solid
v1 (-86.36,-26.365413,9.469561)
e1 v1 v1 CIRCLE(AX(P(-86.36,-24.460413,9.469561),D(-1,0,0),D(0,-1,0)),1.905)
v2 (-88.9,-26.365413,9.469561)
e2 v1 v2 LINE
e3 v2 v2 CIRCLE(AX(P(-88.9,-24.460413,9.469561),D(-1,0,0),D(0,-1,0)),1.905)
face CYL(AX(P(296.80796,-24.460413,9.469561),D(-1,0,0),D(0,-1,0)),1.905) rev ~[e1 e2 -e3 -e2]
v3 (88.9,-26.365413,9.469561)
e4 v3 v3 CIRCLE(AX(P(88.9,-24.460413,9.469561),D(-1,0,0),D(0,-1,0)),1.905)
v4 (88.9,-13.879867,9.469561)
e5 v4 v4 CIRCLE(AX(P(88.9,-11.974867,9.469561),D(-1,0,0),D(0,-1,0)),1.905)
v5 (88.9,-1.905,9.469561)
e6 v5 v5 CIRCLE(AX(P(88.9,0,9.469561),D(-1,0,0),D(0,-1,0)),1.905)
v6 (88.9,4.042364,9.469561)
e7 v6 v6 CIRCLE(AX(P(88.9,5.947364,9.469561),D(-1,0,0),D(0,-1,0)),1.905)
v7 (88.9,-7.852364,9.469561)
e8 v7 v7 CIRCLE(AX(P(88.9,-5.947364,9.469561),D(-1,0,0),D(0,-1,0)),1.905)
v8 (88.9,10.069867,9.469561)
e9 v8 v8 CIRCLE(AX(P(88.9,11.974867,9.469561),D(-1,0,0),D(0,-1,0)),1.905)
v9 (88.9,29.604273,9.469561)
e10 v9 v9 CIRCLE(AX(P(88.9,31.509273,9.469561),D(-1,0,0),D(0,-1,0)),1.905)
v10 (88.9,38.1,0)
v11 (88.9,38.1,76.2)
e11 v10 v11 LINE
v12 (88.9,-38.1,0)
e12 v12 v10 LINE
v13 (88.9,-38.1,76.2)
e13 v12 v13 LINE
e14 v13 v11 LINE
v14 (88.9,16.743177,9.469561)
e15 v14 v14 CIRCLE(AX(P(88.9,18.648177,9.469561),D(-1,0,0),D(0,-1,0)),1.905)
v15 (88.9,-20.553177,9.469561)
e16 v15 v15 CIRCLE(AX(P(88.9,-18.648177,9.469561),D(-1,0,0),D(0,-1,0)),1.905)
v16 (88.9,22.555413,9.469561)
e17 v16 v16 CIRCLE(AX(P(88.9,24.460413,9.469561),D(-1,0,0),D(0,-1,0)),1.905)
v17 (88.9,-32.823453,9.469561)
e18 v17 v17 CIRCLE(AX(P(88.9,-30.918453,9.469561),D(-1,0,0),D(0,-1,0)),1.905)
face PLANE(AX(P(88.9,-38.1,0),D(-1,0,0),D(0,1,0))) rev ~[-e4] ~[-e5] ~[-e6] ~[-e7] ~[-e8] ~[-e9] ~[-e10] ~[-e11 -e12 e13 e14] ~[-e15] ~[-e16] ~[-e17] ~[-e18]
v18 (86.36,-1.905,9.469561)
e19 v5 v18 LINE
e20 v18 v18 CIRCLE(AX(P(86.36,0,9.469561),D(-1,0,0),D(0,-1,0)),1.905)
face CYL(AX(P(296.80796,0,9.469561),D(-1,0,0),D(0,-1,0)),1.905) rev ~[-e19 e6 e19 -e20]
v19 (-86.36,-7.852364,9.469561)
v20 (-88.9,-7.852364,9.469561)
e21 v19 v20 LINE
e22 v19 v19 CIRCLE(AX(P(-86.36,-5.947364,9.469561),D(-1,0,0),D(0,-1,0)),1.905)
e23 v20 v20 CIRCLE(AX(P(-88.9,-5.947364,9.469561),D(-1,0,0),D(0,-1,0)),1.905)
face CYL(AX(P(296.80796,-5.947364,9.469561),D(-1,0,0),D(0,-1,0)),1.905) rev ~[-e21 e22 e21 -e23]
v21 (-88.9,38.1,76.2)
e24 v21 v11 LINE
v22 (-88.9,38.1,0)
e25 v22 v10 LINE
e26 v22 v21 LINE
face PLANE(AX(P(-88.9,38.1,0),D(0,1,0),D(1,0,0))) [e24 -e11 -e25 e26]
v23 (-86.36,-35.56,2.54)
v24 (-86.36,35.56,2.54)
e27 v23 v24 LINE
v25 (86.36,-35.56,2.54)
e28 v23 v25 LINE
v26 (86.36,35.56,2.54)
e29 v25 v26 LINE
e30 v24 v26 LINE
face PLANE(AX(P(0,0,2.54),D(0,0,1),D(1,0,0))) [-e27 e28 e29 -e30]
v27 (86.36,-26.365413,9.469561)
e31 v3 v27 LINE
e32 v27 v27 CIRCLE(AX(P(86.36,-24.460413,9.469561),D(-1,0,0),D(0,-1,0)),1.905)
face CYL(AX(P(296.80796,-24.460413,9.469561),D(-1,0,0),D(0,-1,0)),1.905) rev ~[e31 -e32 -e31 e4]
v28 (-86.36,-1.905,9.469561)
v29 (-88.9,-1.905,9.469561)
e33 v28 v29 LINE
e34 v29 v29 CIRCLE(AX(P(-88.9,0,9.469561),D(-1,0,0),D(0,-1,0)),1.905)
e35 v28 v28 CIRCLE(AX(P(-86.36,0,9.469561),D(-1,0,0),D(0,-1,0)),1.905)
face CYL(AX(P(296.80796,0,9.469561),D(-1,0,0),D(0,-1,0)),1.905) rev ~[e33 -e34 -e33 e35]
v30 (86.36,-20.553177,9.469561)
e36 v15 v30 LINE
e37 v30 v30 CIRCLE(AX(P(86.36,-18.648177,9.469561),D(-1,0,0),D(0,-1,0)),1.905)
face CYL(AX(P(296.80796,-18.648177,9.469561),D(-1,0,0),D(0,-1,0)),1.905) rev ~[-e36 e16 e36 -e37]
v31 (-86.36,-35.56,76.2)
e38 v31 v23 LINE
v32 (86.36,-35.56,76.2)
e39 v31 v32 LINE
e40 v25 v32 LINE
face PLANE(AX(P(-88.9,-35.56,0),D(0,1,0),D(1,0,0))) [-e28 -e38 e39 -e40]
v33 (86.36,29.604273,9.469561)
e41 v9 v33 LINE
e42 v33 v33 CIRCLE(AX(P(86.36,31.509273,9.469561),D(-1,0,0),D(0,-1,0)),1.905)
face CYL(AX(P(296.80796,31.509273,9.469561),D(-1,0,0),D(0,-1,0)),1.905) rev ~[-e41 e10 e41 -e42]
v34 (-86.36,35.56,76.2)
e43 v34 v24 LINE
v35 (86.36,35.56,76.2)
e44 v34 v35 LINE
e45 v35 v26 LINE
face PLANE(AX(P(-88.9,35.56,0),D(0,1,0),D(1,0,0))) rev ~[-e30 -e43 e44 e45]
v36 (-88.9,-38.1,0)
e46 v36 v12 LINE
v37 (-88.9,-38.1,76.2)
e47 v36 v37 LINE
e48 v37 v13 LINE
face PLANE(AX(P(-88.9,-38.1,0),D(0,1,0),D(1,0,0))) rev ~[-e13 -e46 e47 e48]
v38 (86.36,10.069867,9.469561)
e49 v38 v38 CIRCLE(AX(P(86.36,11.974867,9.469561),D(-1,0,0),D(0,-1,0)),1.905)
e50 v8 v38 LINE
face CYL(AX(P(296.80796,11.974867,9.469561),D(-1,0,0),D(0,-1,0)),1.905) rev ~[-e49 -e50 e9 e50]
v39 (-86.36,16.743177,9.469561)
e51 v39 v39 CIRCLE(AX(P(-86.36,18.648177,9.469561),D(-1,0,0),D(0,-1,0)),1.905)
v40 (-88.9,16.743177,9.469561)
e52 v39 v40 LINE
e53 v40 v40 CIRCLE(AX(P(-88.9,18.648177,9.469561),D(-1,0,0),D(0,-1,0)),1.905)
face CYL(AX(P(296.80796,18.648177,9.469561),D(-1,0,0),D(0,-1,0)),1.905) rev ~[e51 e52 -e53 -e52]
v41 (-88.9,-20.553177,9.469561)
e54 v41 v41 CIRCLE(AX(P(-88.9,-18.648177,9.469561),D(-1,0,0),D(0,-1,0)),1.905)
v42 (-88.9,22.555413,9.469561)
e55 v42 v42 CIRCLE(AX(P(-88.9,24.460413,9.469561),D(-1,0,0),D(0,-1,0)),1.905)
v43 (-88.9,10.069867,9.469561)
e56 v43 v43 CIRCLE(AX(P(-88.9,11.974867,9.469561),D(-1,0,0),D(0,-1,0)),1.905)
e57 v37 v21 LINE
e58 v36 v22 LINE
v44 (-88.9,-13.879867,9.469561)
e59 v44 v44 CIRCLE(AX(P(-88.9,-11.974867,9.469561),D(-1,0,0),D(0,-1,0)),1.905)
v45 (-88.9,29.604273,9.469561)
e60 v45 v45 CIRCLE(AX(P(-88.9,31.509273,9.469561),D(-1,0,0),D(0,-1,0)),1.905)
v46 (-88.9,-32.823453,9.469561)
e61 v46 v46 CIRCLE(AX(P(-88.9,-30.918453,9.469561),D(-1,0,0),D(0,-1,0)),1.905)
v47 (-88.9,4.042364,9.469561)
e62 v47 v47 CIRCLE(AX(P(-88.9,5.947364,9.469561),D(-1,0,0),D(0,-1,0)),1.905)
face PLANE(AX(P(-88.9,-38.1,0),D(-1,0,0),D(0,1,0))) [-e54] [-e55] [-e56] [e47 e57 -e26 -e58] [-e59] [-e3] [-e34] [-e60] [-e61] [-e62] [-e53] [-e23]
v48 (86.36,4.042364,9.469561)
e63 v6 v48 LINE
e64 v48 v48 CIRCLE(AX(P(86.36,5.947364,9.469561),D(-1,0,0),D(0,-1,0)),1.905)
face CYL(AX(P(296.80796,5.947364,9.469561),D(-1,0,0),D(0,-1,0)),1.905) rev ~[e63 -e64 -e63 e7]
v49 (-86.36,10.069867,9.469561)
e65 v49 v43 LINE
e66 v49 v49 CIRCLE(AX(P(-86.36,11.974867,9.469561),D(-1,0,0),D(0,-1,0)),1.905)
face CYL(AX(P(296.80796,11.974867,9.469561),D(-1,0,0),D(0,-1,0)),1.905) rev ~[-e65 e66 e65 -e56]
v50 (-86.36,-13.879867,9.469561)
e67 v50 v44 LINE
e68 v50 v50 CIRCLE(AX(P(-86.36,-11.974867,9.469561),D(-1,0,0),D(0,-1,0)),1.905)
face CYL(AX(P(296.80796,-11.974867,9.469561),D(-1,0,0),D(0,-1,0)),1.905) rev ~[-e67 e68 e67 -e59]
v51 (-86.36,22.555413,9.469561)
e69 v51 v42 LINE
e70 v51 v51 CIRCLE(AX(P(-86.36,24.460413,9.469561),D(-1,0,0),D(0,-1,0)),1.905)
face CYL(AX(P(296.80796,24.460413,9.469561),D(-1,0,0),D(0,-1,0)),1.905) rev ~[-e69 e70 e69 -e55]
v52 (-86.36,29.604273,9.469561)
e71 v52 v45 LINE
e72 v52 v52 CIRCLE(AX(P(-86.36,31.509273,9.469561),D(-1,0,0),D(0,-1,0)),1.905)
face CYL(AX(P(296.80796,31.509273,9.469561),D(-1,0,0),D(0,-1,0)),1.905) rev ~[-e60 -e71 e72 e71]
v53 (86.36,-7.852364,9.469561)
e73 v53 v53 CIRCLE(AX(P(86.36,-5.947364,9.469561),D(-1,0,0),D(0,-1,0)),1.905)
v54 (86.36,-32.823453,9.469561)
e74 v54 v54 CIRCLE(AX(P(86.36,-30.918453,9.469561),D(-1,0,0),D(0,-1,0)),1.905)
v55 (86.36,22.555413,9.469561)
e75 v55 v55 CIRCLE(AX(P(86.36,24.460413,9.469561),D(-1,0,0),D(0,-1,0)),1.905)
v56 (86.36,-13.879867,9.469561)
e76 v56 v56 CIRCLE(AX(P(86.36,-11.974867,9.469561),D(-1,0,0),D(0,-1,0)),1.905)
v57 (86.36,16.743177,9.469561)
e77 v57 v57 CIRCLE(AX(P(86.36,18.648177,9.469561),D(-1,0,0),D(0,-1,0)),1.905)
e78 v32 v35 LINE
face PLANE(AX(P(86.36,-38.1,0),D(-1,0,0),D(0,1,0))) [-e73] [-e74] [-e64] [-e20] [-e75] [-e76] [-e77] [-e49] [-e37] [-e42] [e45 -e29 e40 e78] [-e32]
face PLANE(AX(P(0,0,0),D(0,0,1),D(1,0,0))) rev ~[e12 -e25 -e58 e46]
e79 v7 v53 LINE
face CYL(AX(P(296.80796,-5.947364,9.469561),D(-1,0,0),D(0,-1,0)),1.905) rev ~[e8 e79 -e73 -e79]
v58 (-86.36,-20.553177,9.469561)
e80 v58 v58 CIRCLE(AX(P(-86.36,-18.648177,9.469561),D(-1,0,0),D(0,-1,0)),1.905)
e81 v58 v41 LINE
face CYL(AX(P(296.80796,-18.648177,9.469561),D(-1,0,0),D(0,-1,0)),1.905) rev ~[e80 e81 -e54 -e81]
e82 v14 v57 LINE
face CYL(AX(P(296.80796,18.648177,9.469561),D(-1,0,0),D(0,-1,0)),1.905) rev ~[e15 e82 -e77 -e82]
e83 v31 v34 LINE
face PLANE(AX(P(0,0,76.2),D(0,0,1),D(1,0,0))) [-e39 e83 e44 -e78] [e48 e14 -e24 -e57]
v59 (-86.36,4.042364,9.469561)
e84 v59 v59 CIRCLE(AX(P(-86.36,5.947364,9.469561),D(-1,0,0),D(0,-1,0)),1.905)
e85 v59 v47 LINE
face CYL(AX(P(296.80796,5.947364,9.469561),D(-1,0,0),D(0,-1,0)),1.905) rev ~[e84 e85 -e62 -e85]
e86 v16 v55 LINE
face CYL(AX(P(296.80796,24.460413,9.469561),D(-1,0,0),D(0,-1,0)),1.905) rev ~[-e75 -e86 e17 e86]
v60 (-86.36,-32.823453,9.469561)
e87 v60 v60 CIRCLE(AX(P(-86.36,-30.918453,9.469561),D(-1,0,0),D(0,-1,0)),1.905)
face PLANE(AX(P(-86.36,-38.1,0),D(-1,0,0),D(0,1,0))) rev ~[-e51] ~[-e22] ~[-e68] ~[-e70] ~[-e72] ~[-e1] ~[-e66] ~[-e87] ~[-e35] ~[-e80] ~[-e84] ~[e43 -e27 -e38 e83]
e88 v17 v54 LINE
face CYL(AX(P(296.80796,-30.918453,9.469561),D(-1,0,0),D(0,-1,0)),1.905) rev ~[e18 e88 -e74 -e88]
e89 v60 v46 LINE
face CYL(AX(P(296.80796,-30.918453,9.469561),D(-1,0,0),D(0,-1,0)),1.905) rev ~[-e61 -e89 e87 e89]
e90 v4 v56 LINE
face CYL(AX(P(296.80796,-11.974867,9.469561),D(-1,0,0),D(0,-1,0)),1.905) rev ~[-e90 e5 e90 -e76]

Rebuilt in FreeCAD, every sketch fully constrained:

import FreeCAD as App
import Part
import Sketcher
from FreeCAD import Vector
Q = App.Units.Quantity


def faces_at(feature, points):
    """Names of the faces that lie closest to the given points."""
    faces = feature.Shape.Faces
    near = lambda p: min(range(len(faces)), key=lambda i: faces[i].distToShape(Part.Vertex(*p))[0])
    return sorted({f"Face{near(p) + 1}" for p in points})

doc = App.newDocument("Part")
params = doc.addObject("Spreadsheet::Sheet", "Params")
for row, (alias, value) in enumerate([
    ("sketch1_width", "7 in"),
    ("sketch1_height", "3 in"),
    ("pad1_length", "3 in"),
    ("thickness_wall", "0.1 in"),
    ("sketch2_diameter", "0.15 in"),
    ("hole_diameter", "0.15 in"),
], start=1):
    params.set(f"A{row}", alias)
    params.set(f"B{row}", "=" + value)
    params.setAlias(f"B{row}", alias)

body = doc.addObject("PartDesign::Body", "Body")

sketch1 = body.newObject("Sketcher::SketchObject", "Sketch")
sketch1.AttachmentSupport = (doc.getObject("XY_Plane"), [""])
sketch1.MapMode = "FlatFace"
sketch1.addGeometry(Part.LineSegment(Vector(-88.9, 38.1, 0), Vector(-88.9, -38.1, 0)), False)
sketch1.addGeometry(Part.LineSegment(Vector(-88.9, -38.1, 0), Vector(88.9, -38.1, 0)), False)
sketch1.addGeometry(Part.LineSegment(Vector(88.9, -38.1, 0), Vector(88.9, 38.1, 0)), False)
sketch1.addGeometry(Part.LineSegment(Vector(88.9, 38.1, 0), Vector(-88.9, 38.1, 0)), False)
sketch1.addConstraint(Sketcher.Constraint("Coincident", 0, 2, 1, 1))
sketch1.addConstraint(Sketcher.Constraint("Coincident", 1, 2, 2, 1))
sketch1.addConstraint(Sketcher.Constraint("Coincident", 2, 2, 3, 1))
sketch1.addConstraint(Sketcher.Constraint("Coincident", 3, 2, 0, 1))
sketch1.addConstraint(Sketcher.Constraint("Vertical", 0))
sketch1.addConstraint(Sketcher.Constraint("Horizontal", 1))
sketch1.addConstraint(Sketcher.Constraint("Vertical", 2))
sketch1.addConstraint(Sketcher.Constraint("Horizontal", 3))
sketch1.addConstraint(Sketcher.Constraint("Symmetric", 0, 2, 2, 2, -1, 1))
sketch1.addConstraint(Sketcher.Constraint("DistanceX", 1, 1, 1, 2, Q("7 in")))
sketch1.addConstraint(Sketcher.Constraint("DistanceY", 0, 2, 0, 1, Q("3 in")))
sketch1.setExpression("Constraints[9]", "Params.sketch1_width")
sketch1.setExpression("Constraints[10]", "Params.sketch1_height")
pad1 = body.newObject("PartDesign::Pad", "Pad")
pad1.Profile = sketch1
pad1.setExpression("Length", "Params.pad1_length")
doc.recompute()

thickness = body.newObject("PartDesign::Thickness", "Thickness")
thickness.Base = (pad1, faces_at(pad1, [(0, 0, 76.2)]))
thickness.setExpression("Value", "Params.thickness_wall")
thickness.Reversed = True
thickness.Join = "Arc"

sketch2 = body.newObject("Sketcher::SketchObject", "Sketch001")
sketch2.AttachmentSupport = (doc.getObject("YZ_Plane"), [""])
sketch2.MapMode = "FlatFace"
sketch2.AttachmentOffset = App.Placement(Vector(0, 0, 3.5 * 25.4), App.Rotation())
sketch2.addGeometry(Part.Circle(Vector(-30.918453, 9.469561, 0), Vector(0, 0, 1), 1.905), False)
sketch2.addGeometry(Part.Circle(Vector(-24.460413, 9.469561, 0), Vector(0, 0, 1), 1.905), False)
sketch2.addGeometry(Part.Circle(Vector(-18.648177, 9.469561, 0), Vector(0, 0, 1), 1.905), False)
sketch2.addGeometry(Part.Circle(Vector(-5.947364, 9.469561, 0), Vector(0, 0, 1), 1.905), False)
sketch2.addGeometry(Part.Circle(Vector(-11.974867, 9.469561, 0), Vector(0, 0, 1), 1.905), False)
sketch2.addGeometry(Part.Circle(Vector(0, 9.469561, 0), Vector(0, 0, 1), 1.905), False)
sketch2.addGeometry(Part.Circle(Vector(5.947364, 9.469561, 0), Vector(0, 0, 1), 1.905), False)
sketch2.addGeometry(Part.Circle(Vector(11.974867, 9.469561, 0), Vector(0, 0, 1), 1.905), False)
sketch2.addGeometry(Part.Circle(Vector(18.648177, 9.469561, 0), Vector(0, 0, 1), 1.905), False)
sketch2.addGeometry(Part.Circle(Vector(24.460413, 9.469561, 0), Vector(0, 0, 1), 1.905), False)
sketch2.addGeometry(Part.Circle(Vector(31.509273, 9.469561, 0), Vector(0, 0, 1), 1.905), False)
sketch2.addConstraint(Sketcher.Constraint("Equal", 0, 1))
sketch2.addConstraint(Sketcher.Constraint("Equal", 1, 2))
sketch2.addConstraint(Sketcher.Constraint("Equal", 2, 3))
sketch2.addConstraint(Sketcher.Constraint("Equal", 3, 4))
sketch2.addConstraint(Sketcher.Constraint("Equal", 4, 5))
sketch2.addConstraint(Sketcher.Constraint("Equal", 5, 6))
sketch2.addConstraint(Sketcher.Constraint("Equal", 6, 7))
sketch2.addConstraint(Sketcher.Constraint("Equal", 7, 8))
sketch2.addConstraint(Sketcher.Constraint("Equal", 8, 9))
sketch2.addConstraint(Sketcher.Constraint("Equal", 9, 10))
sketch2.addConstraint(Sketcher.Constraint("Symmetric", 3, 3, 6, 3, -2))
sketch2.addConstraint(Sketcher.Constraint("Symmetric", 4, 3, 7, 3, -2))
sketch2.addConstraint(Sketcher.Constraint("Symmetric", 2, 3, 8, 3, -2))
sketch2.addConstraint(Sketcher.Constraint("Symmetric", 1, 3, 9, 3, -2))
sketch2.addConstraint(Sketcher.Constraint("PointOnObject", 5, 3, -2))
sketch2.addConstraint(Sketcher.Constraint("Horizontal", 0, 3, 1, 3))
sketch2.addConstraint(Sketcher.Constraint("Horizontal", 1, 3, 2, 3))
sketch2.addConstraint(Sketcher.Constraint("Horizontal", 2, 3, 3, 3))
sketch2.addConstraint(Sketcher.Constraint("Horizontal", 3, 3, 4, 3))
sketch2.addConstraint(Sketcher.Constraint("Horizontal", 4, 3, 5, 3))
sketch2.addConstraint(Sketcher.Constraint("Horizontal", 9, 3, 10, 3))
sketch2.addConstraint(Sketcher.Constraint("Diameter", 0, Q("0.15 in")))
sketch2.addConstraint(Sketcher.Constraint("DistanceY", -1, 1, 0, 3, 9.469561))
sketch2.addConstraint(Sketcher.Constraint("DistanceX", 0, 3, 1, 3, 6.45804))
sketch2.addConstraint(Sketcher.Constraint("DistanceX", 1, 3, 3, 3, 18.513049))
sketch2.addConstraint(Sketcher.Constraint("DistanceX", 2, 3, 4, 3, 6.67331))
sketch2.addConstraint(Sketcher.Constraint("DistanceX", 3, 3, 6, 3, 11.894728))
sketch2.addConstraint(Sketcher.Constraint("DistanceX", 4, 3, 6, 3, 17.922231))
sketch2.addConstraint(Sketcher.Constraint("DistanceX", 9, 3, 10, 3, 7.04886))
sketch2.setExpression("Constraints[21]", "Params.sketch2_diameter")
doc.recompute()
hole = body.newObject("PartDesign::Hole", "Hole")
hole.Profile = sketch2
hole.ThreadType = "None"
hole.setExpression("Diameter", "Params.hole_diameter")
hole.DepthType = "ThroughAll"

doc.recompute()
